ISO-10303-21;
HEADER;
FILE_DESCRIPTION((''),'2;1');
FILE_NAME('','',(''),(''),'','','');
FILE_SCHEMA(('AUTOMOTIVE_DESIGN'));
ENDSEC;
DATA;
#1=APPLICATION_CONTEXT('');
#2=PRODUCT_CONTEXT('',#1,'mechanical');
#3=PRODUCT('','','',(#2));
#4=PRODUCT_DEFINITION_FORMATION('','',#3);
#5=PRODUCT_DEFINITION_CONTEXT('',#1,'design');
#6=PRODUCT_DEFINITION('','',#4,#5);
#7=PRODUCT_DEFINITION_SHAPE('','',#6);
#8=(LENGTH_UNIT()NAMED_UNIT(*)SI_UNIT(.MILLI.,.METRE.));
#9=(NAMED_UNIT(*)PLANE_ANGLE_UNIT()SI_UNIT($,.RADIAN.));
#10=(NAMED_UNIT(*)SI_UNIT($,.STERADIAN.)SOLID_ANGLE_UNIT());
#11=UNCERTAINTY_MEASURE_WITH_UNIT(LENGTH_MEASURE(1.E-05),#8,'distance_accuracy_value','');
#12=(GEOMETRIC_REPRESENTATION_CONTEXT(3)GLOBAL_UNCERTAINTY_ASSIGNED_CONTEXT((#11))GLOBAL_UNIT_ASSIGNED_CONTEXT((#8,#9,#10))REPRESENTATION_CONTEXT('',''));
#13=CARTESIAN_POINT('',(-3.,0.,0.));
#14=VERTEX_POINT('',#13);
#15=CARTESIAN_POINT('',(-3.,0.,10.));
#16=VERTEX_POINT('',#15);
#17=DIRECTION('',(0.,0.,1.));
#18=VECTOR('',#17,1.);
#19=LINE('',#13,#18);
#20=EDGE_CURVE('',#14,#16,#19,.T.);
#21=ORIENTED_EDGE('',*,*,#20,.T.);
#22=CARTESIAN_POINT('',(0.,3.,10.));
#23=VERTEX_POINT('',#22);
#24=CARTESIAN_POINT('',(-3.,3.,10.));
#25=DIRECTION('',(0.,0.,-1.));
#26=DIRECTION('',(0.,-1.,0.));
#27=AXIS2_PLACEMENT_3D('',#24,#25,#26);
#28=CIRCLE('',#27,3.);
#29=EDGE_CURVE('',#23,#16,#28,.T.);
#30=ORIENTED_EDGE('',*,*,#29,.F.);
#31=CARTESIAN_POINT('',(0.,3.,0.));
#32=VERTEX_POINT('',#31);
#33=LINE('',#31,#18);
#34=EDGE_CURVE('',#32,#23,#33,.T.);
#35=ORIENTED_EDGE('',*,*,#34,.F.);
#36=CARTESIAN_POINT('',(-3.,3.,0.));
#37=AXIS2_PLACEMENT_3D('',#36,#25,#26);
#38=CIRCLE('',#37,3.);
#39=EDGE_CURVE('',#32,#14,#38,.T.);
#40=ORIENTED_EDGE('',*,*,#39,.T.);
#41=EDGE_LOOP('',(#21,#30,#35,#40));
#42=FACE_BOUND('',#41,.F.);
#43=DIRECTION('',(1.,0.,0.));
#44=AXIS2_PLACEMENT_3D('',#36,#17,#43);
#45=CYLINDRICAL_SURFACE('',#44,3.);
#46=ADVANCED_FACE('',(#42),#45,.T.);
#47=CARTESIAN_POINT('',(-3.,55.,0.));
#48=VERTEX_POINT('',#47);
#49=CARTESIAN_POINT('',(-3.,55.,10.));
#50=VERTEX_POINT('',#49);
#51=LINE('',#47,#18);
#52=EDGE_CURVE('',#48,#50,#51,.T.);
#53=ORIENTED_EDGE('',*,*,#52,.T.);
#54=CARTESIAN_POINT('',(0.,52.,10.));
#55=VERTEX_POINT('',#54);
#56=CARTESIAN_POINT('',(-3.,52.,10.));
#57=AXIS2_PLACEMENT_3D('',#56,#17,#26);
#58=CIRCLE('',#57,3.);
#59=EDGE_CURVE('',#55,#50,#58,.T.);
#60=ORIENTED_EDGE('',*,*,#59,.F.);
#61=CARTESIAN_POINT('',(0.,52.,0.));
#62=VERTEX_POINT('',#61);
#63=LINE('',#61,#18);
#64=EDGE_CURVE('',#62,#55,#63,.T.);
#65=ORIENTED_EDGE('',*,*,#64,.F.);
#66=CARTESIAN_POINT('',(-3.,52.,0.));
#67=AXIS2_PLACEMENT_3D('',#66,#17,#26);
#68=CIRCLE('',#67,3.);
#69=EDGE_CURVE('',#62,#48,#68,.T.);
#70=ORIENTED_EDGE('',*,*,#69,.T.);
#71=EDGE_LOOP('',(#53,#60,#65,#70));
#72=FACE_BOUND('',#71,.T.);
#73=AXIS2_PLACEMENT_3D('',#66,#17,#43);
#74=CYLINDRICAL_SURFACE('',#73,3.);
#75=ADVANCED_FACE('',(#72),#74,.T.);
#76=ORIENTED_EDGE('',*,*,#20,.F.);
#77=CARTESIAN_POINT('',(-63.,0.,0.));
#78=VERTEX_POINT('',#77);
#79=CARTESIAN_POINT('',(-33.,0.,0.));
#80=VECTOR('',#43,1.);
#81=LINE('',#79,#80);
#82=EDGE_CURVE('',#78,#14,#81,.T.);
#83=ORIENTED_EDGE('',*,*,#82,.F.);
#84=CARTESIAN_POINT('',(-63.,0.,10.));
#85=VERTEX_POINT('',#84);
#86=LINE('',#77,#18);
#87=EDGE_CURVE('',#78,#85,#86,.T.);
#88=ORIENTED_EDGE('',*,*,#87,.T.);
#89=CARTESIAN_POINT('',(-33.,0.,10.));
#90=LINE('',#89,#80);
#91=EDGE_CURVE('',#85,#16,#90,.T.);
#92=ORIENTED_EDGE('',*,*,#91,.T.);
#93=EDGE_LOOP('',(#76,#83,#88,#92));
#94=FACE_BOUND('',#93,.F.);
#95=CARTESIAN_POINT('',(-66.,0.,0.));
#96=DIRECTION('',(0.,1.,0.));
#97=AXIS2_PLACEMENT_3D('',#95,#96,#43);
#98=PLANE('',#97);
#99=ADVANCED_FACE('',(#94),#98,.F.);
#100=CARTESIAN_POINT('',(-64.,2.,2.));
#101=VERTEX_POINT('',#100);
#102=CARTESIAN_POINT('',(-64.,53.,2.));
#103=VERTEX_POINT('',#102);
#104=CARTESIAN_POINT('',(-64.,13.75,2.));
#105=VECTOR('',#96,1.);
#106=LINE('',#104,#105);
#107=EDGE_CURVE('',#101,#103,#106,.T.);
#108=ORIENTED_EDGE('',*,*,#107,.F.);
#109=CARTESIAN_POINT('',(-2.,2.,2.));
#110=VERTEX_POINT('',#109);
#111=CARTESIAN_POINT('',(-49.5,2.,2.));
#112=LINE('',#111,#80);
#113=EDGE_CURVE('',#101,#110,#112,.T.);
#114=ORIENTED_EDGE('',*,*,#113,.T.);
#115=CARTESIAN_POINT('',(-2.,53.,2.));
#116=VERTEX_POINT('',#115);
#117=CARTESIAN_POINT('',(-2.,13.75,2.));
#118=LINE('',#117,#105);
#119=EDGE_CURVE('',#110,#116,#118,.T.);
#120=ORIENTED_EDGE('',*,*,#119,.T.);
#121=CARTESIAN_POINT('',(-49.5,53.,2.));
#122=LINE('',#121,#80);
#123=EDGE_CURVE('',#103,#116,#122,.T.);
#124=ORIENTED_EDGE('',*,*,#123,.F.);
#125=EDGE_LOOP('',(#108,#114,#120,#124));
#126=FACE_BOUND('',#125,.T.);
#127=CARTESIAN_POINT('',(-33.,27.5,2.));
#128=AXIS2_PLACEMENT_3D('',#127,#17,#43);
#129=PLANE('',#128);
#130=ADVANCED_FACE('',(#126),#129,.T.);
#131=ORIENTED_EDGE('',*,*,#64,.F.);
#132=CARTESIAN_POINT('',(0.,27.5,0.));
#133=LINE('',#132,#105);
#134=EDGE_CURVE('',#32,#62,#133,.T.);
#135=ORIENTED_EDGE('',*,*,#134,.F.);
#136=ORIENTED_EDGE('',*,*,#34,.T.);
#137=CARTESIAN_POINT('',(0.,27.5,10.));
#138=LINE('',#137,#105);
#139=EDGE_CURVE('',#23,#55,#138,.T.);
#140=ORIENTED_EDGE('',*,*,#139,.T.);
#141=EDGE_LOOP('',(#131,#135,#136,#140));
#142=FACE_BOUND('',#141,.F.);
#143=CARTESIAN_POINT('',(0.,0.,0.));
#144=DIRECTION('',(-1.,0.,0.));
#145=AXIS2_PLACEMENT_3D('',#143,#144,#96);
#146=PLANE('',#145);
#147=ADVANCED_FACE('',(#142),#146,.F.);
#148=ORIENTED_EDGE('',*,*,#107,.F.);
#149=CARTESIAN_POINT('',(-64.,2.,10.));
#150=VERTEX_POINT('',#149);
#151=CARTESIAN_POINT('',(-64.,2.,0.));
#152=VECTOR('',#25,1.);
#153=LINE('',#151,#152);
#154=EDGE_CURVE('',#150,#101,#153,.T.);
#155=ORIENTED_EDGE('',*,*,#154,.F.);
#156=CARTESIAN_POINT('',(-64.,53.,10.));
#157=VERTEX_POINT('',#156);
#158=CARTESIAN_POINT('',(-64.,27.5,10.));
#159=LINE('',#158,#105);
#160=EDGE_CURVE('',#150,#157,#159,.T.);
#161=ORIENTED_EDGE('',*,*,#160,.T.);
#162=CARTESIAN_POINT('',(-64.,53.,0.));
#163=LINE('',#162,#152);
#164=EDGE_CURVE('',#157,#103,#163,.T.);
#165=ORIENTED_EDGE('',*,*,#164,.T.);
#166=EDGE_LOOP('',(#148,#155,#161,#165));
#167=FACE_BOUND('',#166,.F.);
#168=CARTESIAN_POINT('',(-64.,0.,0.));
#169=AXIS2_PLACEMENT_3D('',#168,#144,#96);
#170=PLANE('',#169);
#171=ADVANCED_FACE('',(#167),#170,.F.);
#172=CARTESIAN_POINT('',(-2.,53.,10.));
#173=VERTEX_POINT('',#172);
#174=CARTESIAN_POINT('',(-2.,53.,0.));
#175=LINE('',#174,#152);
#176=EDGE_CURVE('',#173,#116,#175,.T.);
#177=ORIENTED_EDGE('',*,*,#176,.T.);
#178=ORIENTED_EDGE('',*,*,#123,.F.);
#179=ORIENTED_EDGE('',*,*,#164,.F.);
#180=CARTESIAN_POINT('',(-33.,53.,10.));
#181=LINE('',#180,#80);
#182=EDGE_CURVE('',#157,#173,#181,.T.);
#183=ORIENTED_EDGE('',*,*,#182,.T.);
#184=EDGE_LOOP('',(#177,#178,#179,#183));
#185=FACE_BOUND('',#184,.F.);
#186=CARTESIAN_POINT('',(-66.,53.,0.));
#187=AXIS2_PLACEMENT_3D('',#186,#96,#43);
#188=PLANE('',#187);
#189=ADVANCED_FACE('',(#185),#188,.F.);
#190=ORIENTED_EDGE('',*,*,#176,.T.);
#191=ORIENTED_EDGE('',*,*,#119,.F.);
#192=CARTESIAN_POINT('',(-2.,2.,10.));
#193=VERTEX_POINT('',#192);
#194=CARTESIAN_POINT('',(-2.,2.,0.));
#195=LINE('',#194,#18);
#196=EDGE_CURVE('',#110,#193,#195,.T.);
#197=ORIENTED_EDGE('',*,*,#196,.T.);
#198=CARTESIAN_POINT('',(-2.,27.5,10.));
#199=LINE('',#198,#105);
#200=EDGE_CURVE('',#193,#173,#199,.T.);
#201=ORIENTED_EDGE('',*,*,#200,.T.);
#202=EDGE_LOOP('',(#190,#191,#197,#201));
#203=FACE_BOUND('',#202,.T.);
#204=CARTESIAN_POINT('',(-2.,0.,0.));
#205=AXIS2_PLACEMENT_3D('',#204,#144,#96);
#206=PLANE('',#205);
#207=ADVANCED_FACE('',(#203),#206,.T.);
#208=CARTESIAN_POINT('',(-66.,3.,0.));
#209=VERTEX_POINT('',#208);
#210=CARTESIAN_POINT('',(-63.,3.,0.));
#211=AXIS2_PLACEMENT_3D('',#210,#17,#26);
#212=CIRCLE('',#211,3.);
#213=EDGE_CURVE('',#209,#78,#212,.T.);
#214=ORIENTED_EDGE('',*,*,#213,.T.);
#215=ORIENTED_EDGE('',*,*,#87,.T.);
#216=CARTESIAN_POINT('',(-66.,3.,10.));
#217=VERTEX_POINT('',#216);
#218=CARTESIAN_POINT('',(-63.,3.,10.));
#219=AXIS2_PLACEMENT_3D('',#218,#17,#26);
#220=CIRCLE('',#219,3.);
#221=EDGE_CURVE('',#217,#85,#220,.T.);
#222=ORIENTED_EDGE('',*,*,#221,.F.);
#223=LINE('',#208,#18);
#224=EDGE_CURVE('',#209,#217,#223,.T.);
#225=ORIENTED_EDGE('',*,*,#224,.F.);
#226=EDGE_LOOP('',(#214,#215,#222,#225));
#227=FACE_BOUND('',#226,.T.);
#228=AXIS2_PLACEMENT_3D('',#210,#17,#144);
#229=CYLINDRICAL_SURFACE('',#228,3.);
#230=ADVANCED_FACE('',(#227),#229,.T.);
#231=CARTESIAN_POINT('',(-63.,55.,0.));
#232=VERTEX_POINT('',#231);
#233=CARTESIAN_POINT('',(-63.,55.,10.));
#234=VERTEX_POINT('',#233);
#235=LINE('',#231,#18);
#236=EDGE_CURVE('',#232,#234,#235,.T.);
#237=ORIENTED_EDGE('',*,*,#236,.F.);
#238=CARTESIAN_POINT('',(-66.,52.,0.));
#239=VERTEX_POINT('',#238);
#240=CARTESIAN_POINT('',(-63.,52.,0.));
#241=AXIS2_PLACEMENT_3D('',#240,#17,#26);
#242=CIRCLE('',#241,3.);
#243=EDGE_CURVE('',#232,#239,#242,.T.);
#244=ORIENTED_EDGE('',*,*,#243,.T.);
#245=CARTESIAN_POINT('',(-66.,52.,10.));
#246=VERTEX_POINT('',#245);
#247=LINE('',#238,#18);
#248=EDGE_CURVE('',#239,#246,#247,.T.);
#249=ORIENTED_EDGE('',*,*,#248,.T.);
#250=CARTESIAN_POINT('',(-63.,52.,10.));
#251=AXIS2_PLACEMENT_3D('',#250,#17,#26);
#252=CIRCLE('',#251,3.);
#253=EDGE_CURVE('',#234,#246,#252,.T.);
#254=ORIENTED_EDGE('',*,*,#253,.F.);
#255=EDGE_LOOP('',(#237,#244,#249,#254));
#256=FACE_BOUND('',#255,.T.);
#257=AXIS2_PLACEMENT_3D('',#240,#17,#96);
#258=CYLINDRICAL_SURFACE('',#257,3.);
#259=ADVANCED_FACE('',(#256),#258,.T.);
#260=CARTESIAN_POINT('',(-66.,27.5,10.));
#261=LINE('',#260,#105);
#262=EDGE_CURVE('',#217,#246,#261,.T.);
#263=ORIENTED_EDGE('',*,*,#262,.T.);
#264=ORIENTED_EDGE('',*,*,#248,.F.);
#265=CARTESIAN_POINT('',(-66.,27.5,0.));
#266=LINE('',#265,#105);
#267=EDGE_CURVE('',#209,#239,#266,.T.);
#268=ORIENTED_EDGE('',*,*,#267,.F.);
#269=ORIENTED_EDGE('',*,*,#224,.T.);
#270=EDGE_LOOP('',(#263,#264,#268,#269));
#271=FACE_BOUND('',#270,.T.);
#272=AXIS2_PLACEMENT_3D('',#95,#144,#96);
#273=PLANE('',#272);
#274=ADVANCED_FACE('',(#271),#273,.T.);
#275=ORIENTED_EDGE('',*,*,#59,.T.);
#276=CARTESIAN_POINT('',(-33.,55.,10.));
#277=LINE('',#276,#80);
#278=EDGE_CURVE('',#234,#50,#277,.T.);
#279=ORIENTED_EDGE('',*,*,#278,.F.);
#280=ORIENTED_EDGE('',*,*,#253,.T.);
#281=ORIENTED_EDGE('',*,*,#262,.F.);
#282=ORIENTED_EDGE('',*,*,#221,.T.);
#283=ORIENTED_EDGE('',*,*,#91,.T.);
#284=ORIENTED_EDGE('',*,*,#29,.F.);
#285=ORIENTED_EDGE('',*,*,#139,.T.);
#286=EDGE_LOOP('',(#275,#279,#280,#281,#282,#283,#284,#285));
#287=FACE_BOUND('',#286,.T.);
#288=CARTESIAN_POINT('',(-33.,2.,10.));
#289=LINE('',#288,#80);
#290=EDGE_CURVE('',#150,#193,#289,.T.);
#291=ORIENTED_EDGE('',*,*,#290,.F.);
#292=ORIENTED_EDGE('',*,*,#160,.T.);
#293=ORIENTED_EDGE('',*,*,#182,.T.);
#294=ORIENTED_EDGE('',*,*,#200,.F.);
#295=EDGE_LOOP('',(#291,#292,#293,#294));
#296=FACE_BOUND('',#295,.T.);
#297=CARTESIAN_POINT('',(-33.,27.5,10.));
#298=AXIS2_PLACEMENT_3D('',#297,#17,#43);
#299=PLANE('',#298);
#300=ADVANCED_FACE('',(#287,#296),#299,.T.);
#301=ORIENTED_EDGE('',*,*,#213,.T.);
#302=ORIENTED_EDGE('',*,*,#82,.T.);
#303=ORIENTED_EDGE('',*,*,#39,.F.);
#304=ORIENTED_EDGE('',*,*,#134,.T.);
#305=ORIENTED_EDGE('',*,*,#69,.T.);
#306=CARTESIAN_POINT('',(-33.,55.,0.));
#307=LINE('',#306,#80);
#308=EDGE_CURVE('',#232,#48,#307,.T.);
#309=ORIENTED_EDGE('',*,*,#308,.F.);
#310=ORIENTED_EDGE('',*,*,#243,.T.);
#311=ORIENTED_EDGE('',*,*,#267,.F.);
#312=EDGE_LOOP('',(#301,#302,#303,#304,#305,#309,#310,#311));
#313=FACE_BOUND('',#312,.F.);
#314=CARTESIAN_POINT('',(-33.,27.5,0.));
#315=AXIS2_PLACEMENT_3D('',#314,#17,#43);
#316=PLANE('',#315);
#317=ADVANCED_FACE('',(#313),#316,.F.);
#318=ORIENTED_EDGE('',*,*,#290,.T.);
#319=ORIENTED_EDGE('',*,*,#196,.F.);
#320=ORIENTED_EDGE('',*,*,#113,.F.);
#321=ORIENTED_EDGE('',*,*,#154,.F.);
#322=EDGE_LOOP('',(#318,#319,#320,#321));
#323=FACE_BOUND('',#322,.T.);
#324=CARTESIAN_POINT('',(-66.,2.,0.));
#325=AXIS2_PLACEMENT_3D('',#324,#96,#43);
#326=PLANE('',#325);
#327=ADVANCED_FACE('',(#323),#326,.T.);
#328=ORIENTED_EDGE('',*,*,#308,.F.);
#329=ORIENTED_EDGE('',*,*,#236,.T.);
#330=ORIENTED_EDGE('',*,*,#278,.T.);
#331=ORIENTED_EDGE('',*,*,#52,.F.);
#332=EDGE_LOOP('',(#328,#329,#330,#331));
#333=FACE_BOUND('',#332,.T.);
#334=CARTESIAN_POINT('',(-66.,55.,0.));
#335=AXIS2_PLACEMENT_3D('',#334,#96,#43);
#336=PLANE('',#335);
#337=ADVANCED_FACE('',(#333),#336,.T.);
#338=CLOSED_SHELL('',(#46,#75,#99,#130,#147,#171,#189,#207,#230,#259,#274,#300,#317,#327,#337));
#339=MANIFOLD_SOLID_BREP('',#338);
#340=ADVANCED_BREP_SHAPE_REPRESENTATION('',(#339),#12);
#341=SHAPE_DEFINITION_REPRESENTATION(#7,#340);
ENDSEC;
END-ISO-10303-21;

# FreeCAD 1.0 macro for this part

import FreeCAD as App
import Part
import Sketcher

V = App.Vector
Q = App.Units.Quantity


def edges_at(feature, points):
    """Names of the edges that pass closest to the given points."""
    edges = feature.Shape.Edges
    near = lambda p: min(range(len(edges)), key=lambda i: edges[i].distToShape(Part.Vertex(*p))[0])
    return sorted({f"Edge{near(p) + 1}" for p in points})


def faces_at(feature, points):
    """Names of the faces that lie closest to the given points."""
    faces = feature.Shape.Faces
    near = lambda p: min(range(len(faces)), key=lambda i: faces[i].distToShape(Part.Vertex(*p))[0])
    return sorted({f"Face{near(p) + 1}" for p in points})

doc = App.newDocument("Part")
body = doc.addObject("PartDesign::Body", "Body")

sketch1 = body.newObject("Sketcher::SketchObject", "Sketch")
sketch1.AttachmentSupport = (doc.getObject("XY_Plane"), [""])
sketch1.MapMode = "FlatFace"
sketch1.addGeometry(Part.LineSegment(V(-66, 55, 0), V(-66, 0, 0)), False)
sketch1.addGeometry(Part.LineSegment(V(-66, 0, 0), V(0, 0, 0)), False)
sketch1.addGeometry(Part.LineSegment(V(0, 0, 0), V(0, 55, 0)), False)
sketch1.addGeometry(Part.LineSegment(V(0, 55, 0), V(-66, 55, 0)), False)
sketch1.addConstraint(Sketcher.Constraint("Coincident", 0, 2, 1, 1))
sketch1.addConstraint(Sketcher.Constraint("Coincident", 1, 2, 2, 1))
sketch1.addConstraint(Sketcher.Constraint("Coincident", 2, 2, 3, 1))
sketch1.addConstraint(Sketcher.Constraint("Coincident", 3, 2, 0, 1))
sketch1.addConstraint(Sketcher.Constraint("Vertical", 0))
sketch1.addConstraint(Sketcher.Constraint("Horizontal", 1))
sketch1.addConstraint(Sketcher.Constraint("Vertical", 2))
sketch1.addConstraint(Sketcher.Constraint("Horizontal", 3))
sketch1.addConstraint(Sketcher.Constraint("Coincident", 1, 2, -1, 1))
sketch1.addConstraint(Sketcher.Constraint("DistanceX", 1, 1, 1, 2, Q("66 mm")))
sketch1.addConstraint(Sketcher.Constraint("DistanceY", 0, 2, 0, 1, Q("55 mm")))
pad1 = body.newObject("PartDesign::Pad", "Pad")
pad1.Profile = sketch1
pad1.Length = 10
doc.recompute()

thickness = body.newObject("PartDesign::Thickness", "Thickness")
thickness.Base = (pad1, faces_at(pad1, [(-33, 27.5, 10)]))
thickness.Value = 2
thickness.Reversed = True
thickness.Join = "Arc"
doc.recompute()

fillet = body.newObject("PartDesign::Fillet", "Fillet")
fillet.Base = (thickness, edges_at(thickness, [(0, 55, 5)]))
fillet.Radius = 3
doc.recompute()

fillet2 = body.newObject("PartDesign::Fillet", "Fillet001")
fillet2.Base = (fillet, edges_at(fillet, [(0, 0, 5)]))
fillet2.Radius = 3
doc.recompute()

fillet3 = body.newObject("PartDesign::Fillet", "Fillet002")
fillet3.Base = (fillet2, edges_at(fillet2, [(-66, 55, 5)]))
fillet3.Radius = 3
doc.recompute()

fillet4 = body.newObject("PartDesign::Fillet", "Fillet003")
fillet4.Base = (fillet3, edges_at(fillet3, [(-66, 0, 5)]))
fillet4.Radius = 3

doc.recompute()
